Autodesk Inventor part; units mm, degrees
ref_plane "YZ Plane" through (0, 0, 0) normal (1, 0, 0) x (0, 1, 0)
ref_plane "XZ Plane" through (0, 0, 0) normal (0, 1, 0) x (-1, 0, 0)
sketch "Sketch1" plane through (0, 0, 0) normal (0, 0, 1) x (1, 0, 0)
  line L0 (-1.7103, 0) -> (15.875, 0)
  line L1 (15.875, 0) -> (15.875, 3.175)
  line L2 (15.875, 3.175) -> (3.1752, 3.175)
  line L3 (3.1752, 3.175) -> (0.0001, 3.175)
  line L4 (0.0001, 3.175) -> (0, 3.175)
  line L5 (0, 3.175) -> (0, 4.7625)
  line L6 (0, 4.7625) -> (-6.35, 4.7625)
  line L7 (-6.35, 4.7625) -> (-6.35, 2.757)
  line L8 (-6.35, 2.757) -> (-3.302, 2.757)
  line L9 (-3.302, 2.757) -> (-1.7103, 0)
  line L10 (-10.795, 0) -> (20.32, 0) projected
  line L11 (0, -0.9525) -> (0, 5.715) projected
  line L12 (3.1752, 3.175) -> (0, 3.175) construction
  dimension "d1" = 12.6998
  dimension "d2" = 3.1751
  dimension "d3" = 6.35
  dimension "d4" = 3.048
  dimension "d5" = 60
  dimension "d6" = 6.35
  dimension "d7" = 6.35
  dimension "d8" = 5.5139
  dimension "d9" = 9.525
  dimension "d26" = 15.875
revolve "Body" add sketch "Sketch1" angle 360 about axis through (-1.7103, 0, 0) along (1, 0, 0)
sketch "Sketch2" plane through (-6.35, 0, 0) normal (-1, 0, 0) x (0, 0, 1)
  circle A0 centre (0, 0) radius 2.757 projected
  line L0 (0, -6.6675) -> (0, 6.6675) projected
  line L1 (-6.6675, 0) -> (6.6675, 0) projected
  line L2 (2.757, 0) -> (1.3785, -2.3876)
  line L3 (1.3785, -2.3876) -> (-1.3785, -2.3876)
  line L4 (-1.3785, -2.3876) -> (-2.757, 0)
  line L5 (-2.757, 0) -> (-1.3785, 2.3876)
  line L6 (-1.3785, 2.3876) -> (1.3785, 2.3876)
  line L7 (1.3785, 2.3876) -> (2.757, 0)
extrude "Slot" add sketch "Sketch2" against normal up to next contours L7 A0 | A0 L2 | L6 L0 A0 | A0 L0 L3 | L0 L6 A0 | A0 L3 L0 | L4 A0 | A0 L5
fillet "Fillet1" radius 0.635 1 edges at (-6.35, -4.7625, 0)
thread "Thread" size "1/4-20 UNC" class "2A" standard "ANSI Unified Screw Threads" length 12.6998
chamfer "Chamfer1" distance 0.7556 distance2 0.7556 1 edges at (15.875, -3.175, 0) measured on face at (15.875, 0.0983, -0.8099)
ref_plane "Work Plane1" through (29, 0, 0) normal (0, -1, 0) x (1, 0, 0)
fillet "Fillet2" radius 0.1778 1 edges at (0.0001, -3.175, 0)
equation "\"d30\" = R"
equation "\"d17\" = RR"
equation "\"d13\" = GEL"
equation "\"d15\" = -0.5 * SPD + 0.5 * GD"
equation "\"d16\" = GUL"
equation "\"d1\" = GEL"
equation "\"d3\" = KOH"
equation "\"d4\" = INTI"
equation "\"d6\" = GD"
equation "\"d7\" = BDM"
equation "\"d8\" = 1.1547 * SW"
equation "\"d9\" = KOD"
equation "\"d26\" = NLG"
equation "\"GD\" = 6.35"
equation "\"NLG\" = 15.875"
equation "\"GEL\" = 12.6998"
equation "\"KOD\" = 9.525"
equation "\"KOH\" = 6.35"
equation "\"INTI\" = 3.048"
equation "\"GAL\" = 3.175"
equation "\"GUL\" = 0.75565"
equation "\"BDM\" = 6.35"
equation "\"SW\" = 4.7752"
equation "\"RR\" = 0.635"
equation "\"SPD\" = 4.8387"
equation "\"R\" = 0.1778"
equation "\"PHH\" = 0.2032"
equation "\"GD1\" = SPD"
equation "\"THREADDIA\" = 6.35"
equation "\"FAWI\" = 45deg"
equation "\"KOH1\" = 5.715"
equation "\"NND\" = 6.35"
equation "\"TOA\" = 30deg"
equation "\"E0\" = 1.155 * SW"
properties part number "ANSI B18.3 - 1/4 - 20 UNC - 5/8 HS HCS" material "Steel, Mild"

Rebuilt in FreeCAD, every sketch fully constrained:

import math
import FreeCAD as App
import Part
import Sketcher
from FreeCAD import Vector
Q = App.Units.Quantity


def edges_at(feature, points):
    """Names of the edges that pass closest to the given points."""
    edges = feature.Shape.Edges
    near = lambda p: min(range(len(edges)), key=lambda i: edges[i].distToShape(Part.Vertex(*p))[0])
    return sorted({f"Edge{near(p) + 1}" for p in points})


def add_polygon(sketch, points):
    """Adds a closed chain of lines whose ends are joined by coincident constraints."""
    first, n = sketch.GeometryCount, len(points)
    for a, b in zip(points, points[1:] + points[:1]):
        sketch.addGeometry(Part.LineSegment(App.Vector(*a, 0), App.Vector(*b, 0)), False)
    for i in range(n):
        sketch.addConstraint(Sketcher.Constraint("Coincident", first + i, 2, first + (i + 1) % n, 1))

doc = App.newDocument("Part")
body = doc.addObject("PartDesign::Body", "Body")

# Sketch on XY plane
sketch1 = body.newObject("Sketcher::SketchObject", "Sketch")
sketch1.AttachmentSupport = (doc.getObject("XY_Plane"), [""])
sketch1.MapMode = "FlatFace"
add_polygon(sketch1, [(-3.3, 2.8), (-1.7, 0), (15.9, 0), (15.9, 3.2), (0, 3.2), (0, 4.8), (-6.3, 4.8), (-6.3, 2.8)])  # lines 0-7
sketch1.addConstraint([
    Sketcher.Constraint("Horizontal", 1),
    Sketcher.Constraint("Vertical", 2),
    Sketcher.Constraint("Horizontal", 3),
    Sketcher.Constraint("Vertical", 4),
    Sketcher.Constraint("Horizontal", 5),
    Sketcher.Constraint("Vertical", 6),
    Sketcher.Constraint("Horizontal", 7),
    Sketcher.Constraint("PointOnObject", 0, 2, -1),
    Sketcher.Constraint("PointOnObject", 3, 2, -2),
    Sketcher.Constraint("DistanceX", 5, 2, 5, 1, Q("0.25 in")),
    Sketcher.Constraint("DistanceX", 7, 1, 7, 2, Q("0.12 in")),
    Sketcher.Constraint("DistanceX", 3, 2, 3, 1, Q("0.625 in")),
    Sketcher.Constraint("DistanceY", 2, 1, 2, 2, Q("0.125 in")),
    Sketcher.Constraint("Angle", 0, Q("-60.0009 deg")),
    Sketcher.Constraint("DistanceY", 4, 1, 4, 2, Q("0.0625 in")),
    Sketcher.Constraint("DistanceX", 1, 1, 1, 2, Q("17.5853 mm")),
])
revolution = body.newObject("PartDesign::Revolution", "Revolution")
revolution.Profile = sketch1
revolution.ReferenceAxis = (sketch1, ["H_Axis"])
revolution.Angle = 360

# Sketch on YZ plane
sketch2 = body.newObject("Sketcher::SketchObject", "Sketch001")
sketch2.AttachmentSupport = (doc.getObject("YZ_Plane"), [""])
sketch2.MapMode = "FlatFace"
sketch2.AttachmentOffset = App.Placement(Vector(0, 0, -0.25 * 25.4), App.Rotation())
sketch2.addGeometry([
    Part.LineSegment(Vector(2.4, 1.4, 0), Vector(0, 2.8, 0)),  # 0
    Part.ArcOfCircle(Part.Circle(Vector(0, 0, 0), Vector(0, 0, 1), 2.8), math.radians(30), math.radians(90)),  # 1
    Part.ArcOfCircle(Part.Circle(Vector(0, 0, 0), Vector(0, 0, 1), 2.8), math.radians(90), math.radians(150)),  # 2
    Part.LineSegment(Vector(0, 2.8, 0), Vector(-2.4, 1.4, 0)),  # 3
    Part.ArcOfCircle(Part.Circle(Vector(0, 0, 0), Vector(0, 0, 1), 2.8), math.radians(-30), math.radians(30)),  # 4
    Part.LineSegment(Vector(2.4, 1.4, 0), Vector(2.4, -1.4, 0)),  # 5
    Part.LineSegment(Vector(-2.4, 1.4, 0), Vector(-2.4, -1.4, 0)),  # 6
    Part.ArcOfCircle(Part.Circle(Vector(0, 0, 0), Vector(0, 0, 1), 2.8), math.radians(150), math.radians(210)),  # 7
    Part.LineSegment(Vector(-2.4, -1.4, 0), Vector(0, -2.8, 0)),  # 8
    Part.ArcOfCircle(Part.Circle(Vector(0, 0, 0), Vector(0, 0, 1), 2.8), math.radians(-150), math.radians(-90)),  # 9
    Part.ArcOfCircle(Part.Circle(Vector(0, 0, 0), Vector(0, 0, 1), 2.8), math.radians(-90), math.radians(-30)),  # 10
    Part.LineSegment(Vector(0, -2.8, 0), Vector(2.4, -1.4, 0)),  # 11
], False)
sketch2.addConstraint([
    Sketcher.Constraint("Coincident", 0, 1, 1, 1),
    Sketcher.Constraint("Coincident", 1, 2, 0, 2),
    Sketcher.Constraint("Coincident", 2, 1, 3, 1),
    Sketcher.Constraint("Coincident", 3, 2, 2, 2),
    Sketcher.Constraint("Coincident", 4, 1, 5, 2),
    Sketcher.Constraint("Coincident", 5, 1, 4, 2),
    Sketcher.Constraint("Coincident", 6, 1, 7, 1),
    Sketcher.Constraint("Coincident", 7, 2, 6, 2),
    Sketcher.Constraint("Coincident", 8, 1, 9, 1),
    Sketcher.Constraint("Coincident", 9, 2, 8, 2),
    Sketcher.Constraint("Coincident", 10, 1, 11, 1),
    Sketcher.Constraint("Coincident", 11, 2, 10, 2),
    Sketcher.Constraint("Vertical", 5),
    Sketcher.Constraint("Vertical", 6),
    Sketcher.Constraint("Coincident", 1, 3, -1, 1),
    Sketcher.Constraint("Coincident", 2, 3, -1, 1),
    Sketcher.Constraint("Coincident", 4, 3, -1, 1),
    Sketcher.Constraint("Coincident", 7, 3, -1, 1),
    Sketcher.Constraint("Coincident", 9, 3, -1, 1),
    Sketcher.Constraint("Coincident", 10, 3, -1, 1),
    Sketcher.Constraint("Coincident", 2, 1, 1, 2),
    Sketcher.Constraint("Coincident", 5, 1, 0, 1),
    Sketcher.Constraint("Coincident", 6, 1, 3, 2),
    Sketcher.Constraint("Coincident", 8, 1, 7, 2),
    Sketcher.Constraint("Coincident", 10, 1, 9, 2),
    Sketcher.Constraint("PointOnObject", 1, 2, -2),
    Sketcher.Constraint("PointOnObject", 9, 2, -2),
    Sketcher.Constraint("Parallel", 0, 8),
    Sketcher.Constraint("Parallel", 3, 11),
    Sketcher.Constraint("Angle", 0, Q("149.9997 deg")),
    Sketcher.Constraint("Radius", 1, Q("2.757 mm")),
])
pad1 = body.newObject("PartDesign::Pad", "Pad")
pad1.Profile = sketch2
pad1.Type = "UpToFirst"
doc.recompute()

fillet = body.newObject("PartDesign::Fillet", "Fillet")
fillet.Base = (pad1, edges_at(pad1, [(-6.35, -4.763, 0)]))
fillet.Radius = Q("0.025 in")
doc.recompute()

chamfer = body.newObject("PartDesign::Chamfer", "Chamfer")
chamfer.Base = (fillet, edges_at(fillet, [(15.875, -3.175, 0)]))
chamfer.ChamferType = "Two distances"
chamfer.Size = 0.7556
chamfer.Size2 = 0.7556
doc.recompute()

fillet2 = body.newObject("PartDesign::Fillet", "Fillet001")
fillet2.Base = (chamfer, edges_at(chamfer, [(0, -3.175, 0)]))
fillet2.Radius = Q("0.007 in")

doc.recompute()
